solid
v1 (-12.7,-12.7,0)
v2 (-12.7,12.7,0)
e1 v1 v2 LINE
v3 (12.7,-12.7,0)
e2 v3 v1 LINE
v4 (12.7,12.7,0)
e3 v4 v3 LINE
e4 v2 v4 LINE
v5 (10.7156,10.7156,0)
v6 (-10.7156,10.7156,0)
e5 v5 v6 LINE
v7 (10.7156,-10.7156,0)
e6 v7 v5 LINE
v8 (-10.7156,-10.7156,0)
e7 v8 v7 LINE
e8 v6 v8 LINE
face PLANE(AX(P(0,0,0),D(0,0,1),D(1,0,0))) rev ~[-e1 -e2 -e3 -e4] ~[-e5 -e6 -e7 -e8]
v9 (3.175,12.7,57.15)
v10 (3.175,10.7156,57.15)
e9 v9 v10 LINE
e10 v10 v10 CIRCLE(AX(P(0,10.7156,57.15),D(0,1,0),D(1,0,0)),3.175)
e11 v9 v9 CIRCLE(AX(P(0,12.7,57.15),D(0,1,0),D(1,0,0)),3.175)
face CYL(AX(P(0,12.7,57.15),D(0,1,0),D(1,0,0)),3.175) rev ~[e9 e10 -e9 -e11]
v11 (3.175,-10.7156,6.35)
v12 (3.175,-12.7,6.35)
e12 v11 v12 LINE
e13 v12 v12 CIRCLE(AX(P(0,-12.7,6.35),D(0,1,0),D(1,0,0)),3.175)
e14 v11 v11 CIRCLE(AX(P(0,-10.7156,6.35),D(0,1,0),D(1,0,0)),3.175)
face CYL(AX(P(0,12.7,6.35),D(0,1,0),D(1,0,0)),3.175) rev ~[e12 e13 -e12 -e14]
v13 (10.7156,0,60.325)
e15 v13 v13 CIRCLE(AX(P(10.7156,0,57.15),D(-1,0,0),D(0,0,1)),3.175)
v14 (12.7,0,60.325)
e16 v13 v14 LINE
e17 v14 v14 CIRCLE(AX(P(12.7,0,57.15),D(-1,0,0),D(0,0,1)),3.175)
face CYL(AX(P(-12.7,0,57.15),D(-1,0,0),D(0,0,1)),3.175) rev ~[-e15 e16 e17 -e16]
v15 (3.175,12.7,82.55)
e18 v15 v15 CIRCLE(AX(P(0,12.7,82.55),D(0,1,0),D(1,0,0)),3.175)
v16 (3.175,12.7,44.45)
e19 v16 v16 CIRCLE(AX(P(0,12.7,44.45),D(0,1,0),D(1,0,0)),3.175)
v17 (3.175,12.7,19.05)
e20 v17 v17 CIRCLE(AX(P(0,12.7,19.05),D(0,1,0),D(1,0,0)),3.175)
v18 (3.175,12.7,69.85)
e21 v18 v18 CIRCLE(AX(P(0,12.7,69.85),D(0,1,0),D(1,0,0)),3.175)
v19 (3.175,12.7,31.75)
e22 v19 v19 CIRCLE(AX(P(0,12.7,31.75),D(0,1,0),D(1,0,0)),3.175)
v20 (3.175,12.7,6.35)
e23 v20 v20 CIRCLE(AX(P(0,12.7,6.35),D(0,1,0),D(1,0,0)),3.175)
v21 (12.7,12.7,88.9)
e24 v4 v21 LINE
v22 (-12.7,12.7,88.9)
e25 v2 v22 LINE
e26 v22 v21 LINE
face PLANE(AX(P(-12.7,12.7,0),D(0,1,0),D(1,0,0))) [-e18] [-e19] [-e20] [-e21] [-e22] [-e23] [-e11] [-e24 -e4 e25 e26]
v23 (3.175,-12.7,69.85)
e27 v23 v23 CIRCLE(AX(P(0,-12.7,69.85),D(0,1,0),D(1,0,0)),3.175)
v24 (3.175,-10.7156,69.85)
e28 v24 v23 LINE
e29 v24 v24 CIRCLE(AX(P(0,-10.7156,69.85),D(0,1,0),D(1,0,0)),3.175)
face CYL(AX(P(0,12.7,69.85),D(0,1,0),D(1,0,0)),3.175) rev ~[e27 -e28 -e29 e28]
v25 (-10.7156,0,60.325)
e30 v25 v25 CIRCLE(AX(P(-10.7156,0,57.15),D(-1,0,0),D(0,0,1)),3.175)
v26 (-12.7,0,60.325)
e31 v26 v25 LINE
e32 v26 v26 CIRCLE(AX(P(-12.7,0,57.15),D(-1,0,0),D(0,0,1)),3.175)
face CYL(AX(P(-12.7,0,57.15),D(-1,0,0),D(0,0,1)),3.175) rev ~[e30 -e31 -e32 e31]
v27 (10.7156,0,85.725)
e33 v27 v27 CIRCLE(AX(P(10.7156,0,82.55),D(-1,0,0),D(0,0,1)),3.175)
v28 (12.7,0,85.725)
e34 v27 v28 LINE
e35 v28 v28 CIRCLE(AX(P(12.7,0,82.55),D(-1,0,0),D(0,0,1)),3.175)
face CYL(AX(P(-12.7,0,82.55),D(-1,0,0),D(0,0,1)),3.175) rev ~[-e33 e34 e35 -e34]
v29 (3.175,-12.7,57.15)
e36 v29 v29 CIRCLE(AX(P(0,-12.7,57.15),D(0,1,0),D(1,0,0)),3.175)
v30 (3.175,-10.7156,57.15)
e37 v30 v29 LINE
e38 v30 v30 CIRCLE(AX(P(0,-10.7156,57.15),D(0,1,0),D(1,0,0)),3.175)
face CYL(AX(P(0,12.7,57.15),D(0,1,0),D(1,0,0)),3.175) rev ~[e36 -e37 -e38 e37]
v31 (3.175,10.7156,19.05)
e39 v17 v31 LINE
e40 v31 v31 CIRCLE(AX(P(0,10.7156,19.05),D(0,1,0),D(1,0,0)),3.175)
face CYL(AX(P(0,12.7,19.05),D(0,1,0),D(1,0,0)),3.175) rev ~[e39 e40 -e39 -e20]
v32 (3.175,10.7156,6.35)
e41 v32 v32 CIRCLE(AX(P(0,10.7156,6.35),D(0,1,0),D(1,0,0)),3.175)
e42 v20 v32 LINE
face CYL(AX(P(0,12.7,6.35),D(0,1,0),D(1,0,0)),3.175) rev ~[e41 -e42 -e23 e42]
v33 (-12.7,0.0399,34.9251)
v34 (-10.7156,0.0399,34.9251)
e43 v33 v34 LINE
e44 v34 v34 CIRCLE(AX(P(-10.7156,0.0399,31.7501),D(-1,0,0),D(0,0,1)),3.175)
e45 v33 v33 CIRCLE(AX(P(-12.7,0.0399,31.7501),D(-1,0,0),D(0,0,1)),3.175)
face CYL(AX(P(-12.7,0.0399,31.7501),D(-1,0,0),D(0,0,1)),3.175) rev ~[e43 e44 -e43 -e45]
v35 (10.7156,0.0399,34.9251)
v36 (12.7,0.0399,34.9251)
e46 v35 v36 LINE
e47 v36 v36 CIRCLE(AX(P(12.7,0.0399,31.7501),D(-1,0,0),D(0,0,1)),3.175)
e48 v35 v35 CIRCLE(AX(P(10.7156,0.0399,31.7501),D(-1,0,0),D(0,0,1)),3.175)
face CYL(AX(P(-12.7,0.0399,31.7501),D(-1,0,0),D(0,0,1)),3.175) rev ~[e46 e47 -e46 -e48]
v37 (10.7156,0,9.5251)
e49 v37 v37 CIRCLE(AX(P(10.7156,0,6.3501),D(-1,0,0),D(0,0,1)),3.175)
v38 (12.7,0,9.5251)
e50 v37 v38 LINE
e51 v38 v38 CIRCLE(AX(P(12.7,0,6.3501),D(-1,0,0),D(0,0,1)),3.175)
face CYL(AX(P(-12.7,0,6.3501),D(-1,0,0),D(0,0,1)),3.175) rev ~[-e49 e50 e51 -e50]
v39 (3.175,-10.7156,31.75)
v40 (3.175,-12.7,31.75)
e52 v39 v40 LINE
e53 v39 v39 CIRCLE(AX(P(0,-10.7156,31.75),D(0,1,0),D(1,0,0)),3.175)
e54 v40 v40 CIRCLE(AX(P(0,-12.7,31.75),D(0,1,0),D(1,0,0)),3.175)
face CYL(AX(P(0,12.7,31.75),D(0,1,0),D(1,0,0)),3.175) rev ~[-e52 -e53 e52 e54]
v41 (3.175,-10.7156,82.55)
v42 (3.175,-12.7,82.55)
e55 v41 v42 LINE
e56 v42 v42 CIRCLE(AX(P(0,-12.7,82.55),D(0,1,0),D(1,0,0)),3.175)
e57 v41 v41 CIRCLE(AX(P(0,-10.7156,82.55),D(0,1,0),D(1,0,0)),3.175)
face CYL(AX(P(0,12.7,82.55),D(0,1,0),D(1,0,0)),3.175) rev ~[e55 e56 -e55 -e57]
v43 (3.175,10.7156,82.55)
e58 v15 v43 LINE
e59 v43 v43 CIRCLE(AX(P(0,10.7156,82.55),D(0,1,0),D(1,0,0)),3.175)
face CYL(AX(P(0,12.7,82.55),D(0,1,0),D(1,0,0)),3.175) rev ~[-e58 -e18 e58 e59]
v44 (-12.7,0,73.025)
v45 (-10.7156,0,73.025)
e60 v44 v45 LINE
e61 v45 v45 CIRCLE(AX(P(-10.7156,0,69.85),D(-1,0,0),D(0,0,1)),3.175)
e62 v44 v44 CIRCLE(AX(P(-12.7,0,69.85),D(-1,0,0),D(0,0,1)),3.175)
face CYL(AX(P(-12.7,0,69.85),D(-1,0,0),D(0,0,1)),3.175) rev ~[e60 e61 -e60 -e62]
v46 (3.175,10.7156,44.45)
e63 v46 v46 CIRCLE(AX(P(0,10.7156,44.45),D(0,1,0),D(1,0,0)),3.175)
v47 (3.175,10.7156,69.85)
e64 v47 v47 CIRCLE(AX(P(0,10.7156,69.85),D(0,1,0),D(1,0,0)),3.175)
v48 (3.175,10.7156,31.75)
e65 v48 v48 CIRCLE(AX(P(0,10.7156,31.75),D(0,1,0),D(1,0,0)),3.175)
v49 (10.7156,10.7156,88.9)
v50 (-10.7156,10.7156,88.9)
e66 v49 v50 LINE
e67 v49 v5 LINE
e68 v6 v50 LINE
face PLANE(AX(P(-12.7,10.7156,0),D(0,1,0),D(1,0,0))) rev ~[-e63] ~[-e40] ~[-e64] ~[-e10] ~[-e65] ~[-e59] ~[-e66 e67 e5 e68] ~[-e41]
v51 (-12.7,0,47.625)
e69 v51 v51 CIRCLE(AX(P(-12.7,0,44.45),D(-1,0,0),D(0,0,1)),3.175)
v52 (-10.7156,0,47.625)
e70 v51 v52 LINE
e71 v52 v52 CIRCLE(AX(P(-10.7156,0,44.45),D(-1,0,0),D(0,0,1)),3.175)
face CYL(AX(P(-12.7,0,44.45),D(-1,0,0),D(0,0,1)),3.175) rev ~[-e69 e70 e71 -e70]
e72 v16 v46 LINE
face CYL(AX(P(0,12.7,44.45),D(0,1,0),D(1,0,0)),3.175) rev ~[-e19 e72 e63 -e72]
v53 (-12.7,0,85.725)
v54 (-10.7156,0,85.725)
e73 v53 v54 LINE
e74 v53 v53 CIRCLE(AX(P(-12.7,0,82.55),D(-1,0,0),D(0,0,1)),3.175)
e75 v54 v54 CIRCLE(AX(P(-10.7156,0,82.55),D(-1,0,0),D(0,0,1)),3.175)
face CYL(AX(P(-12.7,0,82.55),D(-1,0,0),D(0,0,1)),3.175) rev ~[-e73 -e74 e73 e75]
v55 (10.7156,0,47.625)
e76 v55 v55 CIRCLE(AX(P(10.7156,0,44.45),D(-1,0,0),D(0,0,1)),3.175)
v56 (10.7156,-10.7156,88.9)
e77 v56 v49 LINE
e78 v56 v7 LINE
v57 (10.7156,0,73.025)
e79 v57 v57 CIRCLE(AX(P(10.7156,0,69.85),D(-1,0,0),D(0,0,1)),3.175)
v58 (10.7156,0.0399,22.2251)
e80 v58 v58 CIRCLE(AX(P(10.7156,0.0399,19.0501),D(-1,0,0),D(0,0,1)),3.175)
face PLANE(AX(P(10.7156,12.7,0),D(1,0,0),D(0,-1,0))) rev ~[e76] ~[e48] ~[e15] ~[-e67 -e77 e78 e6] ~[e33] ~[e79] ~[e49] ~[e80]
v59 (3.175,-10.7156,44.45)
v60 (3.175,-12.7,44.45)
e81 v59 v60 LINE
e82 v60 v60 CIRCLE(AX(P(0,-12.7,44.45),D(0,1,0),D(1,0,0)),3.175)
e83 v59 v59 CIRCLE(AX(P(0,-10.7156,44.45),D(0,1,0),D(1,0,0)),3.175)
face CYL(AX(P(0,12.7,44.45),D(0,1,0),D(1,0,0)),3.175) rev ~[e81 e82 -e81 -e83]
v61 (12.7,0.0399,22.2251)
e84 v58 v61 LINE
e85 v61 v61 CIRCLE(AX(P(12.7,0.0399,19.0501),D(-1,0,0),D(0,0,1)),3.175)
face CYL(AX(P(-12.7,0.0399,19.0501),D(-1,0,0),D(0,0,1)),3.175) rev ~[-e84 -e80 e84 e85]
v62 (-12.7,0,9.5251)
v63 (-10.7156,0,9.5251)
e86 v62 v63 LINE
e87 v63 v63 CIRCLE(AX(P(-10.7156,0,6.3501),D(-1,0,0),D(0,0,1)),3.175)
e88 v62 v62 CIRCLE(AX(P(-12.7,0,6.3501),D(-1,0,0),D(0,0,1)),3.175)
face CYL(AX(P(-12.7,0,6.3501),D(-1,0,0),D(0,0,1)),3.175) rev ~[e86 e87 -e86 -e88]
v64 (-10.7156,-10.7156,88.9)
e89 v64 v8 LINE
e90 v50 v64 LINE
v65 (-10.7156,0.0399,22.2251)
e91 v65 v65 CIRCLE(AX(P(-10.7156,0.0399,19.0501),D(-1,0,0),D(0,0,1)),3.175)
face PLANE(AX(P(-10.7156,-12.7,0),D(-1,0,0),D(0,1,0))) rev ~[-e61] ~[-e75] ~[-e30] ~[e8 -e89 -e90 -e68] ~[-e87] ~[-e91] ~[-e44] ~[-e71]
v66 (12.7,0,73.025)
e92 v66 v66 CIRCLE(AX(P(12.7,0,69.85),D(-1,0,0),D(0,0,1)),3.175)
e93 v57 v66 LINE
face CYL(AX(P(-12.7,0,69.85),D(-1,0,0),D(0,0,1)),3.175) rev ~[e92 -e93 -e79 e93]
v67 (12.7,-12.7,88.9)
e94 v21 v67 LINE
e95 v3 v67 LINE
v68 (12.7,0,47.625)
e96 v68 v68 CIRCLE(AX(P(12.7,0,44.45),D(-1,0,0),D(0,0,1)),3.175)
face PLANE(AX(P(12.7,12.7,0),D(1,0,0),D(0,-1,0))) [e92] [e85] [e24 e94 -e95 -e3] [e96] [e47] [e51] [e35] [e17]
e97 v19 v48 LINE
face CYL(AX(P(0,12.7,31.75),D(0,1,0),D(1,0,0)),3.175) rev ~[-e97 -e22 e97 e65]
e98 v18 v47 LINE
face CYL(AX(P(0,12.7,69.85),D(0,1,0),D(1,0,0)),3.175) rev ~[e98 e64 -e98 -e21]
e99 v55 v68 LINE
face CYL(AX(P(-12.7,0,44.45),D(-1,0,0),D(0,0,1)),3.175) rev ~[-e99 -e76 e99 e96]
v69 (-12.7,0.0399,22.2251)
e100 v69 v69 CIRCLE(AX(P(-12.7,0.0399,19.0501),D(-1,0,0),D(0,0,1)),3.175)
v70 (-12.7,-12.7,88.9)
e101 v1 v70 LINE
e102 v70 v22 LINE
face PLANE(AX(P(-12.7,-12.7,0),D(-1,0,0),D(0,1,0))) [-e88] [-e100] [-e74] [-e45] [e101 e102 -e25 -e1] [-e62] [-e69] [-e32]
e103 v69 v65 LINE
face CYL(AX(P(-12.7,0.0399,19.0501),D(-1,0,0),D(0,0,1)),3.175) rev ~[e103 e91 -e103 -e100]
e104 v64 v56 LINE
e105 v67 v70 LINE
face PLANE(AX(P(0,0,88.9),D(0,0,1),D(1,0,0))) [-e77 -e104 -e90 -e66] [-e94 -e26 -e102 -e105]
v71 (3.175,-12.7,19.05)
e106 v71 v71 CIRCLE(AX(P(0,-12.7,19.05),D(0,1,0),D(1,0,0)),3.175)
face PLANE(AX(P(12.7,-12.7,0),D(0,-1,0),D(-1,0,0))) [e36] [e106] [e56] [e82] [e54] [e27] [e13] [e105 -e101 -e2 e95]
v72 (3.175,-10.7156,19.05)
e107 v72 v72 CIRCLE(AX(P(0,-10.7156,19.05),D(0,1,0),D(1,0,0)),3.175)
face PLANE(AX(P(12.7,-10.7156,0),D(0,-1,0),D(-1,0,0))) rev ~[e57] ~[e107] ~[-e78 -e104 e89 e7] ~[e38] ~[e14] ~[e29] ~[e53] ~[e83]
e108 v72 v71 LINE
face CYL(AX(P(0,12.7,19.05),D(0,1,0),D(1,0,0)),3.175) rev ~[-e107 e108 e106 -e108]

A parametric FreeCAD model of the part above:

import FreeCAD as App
import Part
import Sketcher
from FreeCAD import Vector
Q = App.Units.Quantity


def faces_at(feature, points):
    """Names of the faces that lie closest to the given points."""
    faces = feature.Shape.Faces
    near = lambda p: min(range(len(faces)), key=lambda i: faces[i].distToShape(Part.Vertex(*p))[0])
    return sorted({f"Face{near(p) + 1}" for p in points})

doc = App.newDocument("Part")
body = doc.addObject("PartDesign::Body", "Body")

# Sketch on XY plane
sketch1 = body.newObject("Sketcher::SketchObject", "Sketch")
sketch1.AttachmentSupport = (doc.getObject("XY_Plane"), [""])
sketch1.MapMode = "FlatFace"
sketch1.addGeometry([
    Part.LineSegment(Vector(13, 13, 0), Vector(-13, 13, 0)),
    Part.LineSegment(Vector(-13, 13, 0), Vector(-13, -13, 0)),
    Part.LineSegment(Vector(-13, -13, 0), Vector(13, -13, 0)),
    Part.LineSegment(Vector(13, -13, 0), Vector(13, 13, 0)),
], False)
sketch1.addConstraint([
    Sketcher.Constraint("Coincident", 0, 2, 1, 1),
    Sketcher.Constraint("Coincident", 1, 2, 2, 1),
    Sketcher.Constraint("Coincident", 2, 2, 3, 1),
    Sketcher.Constraint("Coincident", 3, 2, 0, 1),
    Sketcher.Constraint("Horizontal", 0),
    Sketcher.Constraint("Vertical", 1),
    Sketcher.Constraint("Horizontal", 2),
    Sketcher.Constraint("Vertical", 3),
    Sketcher.Constraint("Symmetric", 0, 2, 2, 2, -1, 1),
    Sketcher.Constraint("Equal", 2, 1),
    Sketcher.Constraint("DistanceX", 0, 2, 0, 1, Q("1 in")),
])
pad1 = body.newObject("PartDesign::Pad", "Pad")
pad1.Profile = sketch1
pad1.Length = Q("3.5 in")
doc.recompute()

thickness = body.newObject("PartDesign::Thickness", "Thickness")
thickness.Base = (pad1, faces_at(pad1, [(4.233, -4.233, 0), (4.233, -4.233, 88.9)]))
thickness.Value = Q("0.078126 in")
thickness.Reversed = True
thickness.Join = "Intersection"

# Sketch on YZ plane
sketch2 = body.newObject("Sketcher::SketchObject", "Sketch001")
sketch2.AttachmentSupport = (doc.getObject("YZ_Plane"), [""])
sketch2.MapMode = "FlatFace"
sketch2.AttachmentOffset = App.Placement(Vector(0, 0, -0.5 * 25.4), App.Rotation())
sketch2.addGeometry([
    Part.Circle(Vector(0, 19.1, 0), Vector(0, 0, 1), 3.2),  # 0
    Part.Circle(Vector(0, 31.8, 0), Vector(0, 0, 1), 3.2),  # 1
    Part.Circle(Vector(0, 44.5, 0), Vector(0, 0, 1), 3.2),  # 2
    Part.Circle(Vector(0, 57.1, 0), Vector(0, 0, 1), 3.2),  # 3
    Part.Circle(Vector(0, 69.8, 0), Vector(0, 0, 1), 3.2),  # 4
    Part.Circle(Vector(0, 82.5, 0), Vector(0, 0, 1), 3.2),  # 5
    Part.Circle(Vector(0, 6.4, 0), Vector(0, 0, 1), 3.2),  # 6
], False)
sketch2.addConstraint([
    Sketcher.Constraint("Equal", 0, 1),
    Sketcher.Constraint("Equal", 1, 2),
    Sketcher.Constraint("Equal", 2, 3),
    Sketcher.Constraint("Equal", 3, 4),
    Sketcher.Constraint("Equal", 4, 5),
    Sketcher.Constraint("Equal", 5, 6),
    Sketcher.Constraint("PointOnObject", 2, 3, -2),
    Sketcher.Constraint("PointOnObject", 3, 3, -2),
    Sketcher.Constraint("PointOnObject", 4, 3, -2),
    Sketcher.Constraint("PointOnObject", 5, 3, -2),
    Sketcher.Constraint("PointOnObject", 6, 3, -2),
    Sketcher.Constraint("Vertical", 0, 3, 1, 3),
    Sketcher.Constraint("Diameter", 0, Q("0.25 in")),
    Sketcher.Constraint("DistanceY", 0, 3, 1, 3, Q("0.5 in")),
    Sketcher.Constraint("DistanceY", 1, 3, 2, 3, Q("0.5 in")),
    Sketcher.Constraint("DistanceY", 2, 3, 3, 3, Q("0.5 in")),
    Sketcher.Constraint("DistanceY", 3, 3, 4, 3, Q("0.5 in")),
    Sketcher.Constraint("DistanceY", 4, 3, 5, 3, Q("0.5 in")),
    Sketcher.Constraint("DistanceY", 6, 3, 0, 3, Q("0.5 in")),
    Sketcher.Constraint("DistanceY", -1, 1, 6, 3, Q("0.25 in")),
    Sketcher.Constraint("DistanceX", -1, 1, 0, 3, Q("0.04 mm")),
])
pocket1 = body.newObject("PartDesign::Pocket", "Pocket")
pocket1.Profile = sketch2
pocket1.Length = Q("3.5 in")
pocket1.Reversed = True

# Sketch on XZ plane
sketch3 = body.newObject("Sketcher::SketchObject", "Sketch002")
sketch3.AttachmentSupport = (doc.getObject("XZ_Plane"), [""])
sketch3.MapMode = "FlatFace"
sketch3.AttachmentOffset = App.Placement(Vector(0, 0, -0.5 * 25.4), App.Rotation())
sketch3.addGeometry([
    Part.Circle(Vector(0, 44.5, 0), Vector(0, 0, 1), 3.2),  # 0
    Part.Circle(Vector(0, 31.8, 0), Vector(0, 0, 1), 3.2),  # 1
    Part.Circle(Vector(0, 19.1, 0), Vector(0, 0, 1), 3.2),  # 2
    Part.Circle(Vector(0, 6.3, 0), Vector(0, 0, 1), 3.2),  # 3
    Part.Circle(Vector(0, 57.1, 0), Vector(0, 0, 1), 3.2),  # 4
    Part.Circle(Vector(0, 69.8, 0), Vector(0, 0, 1), 3.2),  # 5
    Part.Circle(Vector(0, 82.5, 0), Vector(0, 0, 1), 3.2),  # 6
], False)
sketch3.addConstraint([
    Sketcher.Constraint("Equal", 0, 1),
    Sketcher.Constraint("Equal", 1, 2),
    Sketcher.Constraint("Equal", 2, 3),
    Sketcher.Constraint("Equal", 3, 4),
    Sketcher.Constraint("Equal", 4, 5),
    Sketcher.Constraint("Equal", 5, 6),
    Sketcher.Constraint("PointOnObject", 0, 3, -2),
    Sketcher.Constraint("PointOnObject", 1, 3, -2),
    Sketcher.Constraint("PointOnObject", 2, 3, -2),
    Sketcher.Constraint("PointOnObject", 3, 3, -2),
    Sketcher.Constraint("PointOnObject", 4, 3, -2),
    Sketcher.Constraint("PointOnObject", 5, 3, -2),
    Sketcher.Constraint("PointOnObject", 6, 3, -2),
    Sketcher.Constraint("Diameter", 0, Q("0.25 in")),
    Sketcher.Constraint("DistanceY", 1, 3, 0, 3, Q("0.5 in")),
    Sketcher.Constraint("DistanceY", 2, 3, 1, 3, Q("0.5 in")),
    Sketcher.Constraint("DistanceY", 3, 3, 2, 3, Q("0.5 in")),
    Sketcher.Constraint("DistanceY", 0, 3, 4, 3, Q("0.5 in")),
    Sketcher.Constraint("DistanceY", 4, 3, 5, 3, Q("0.5 in")),
    Sketcher.Constraint("DistanceY", 5, 3, 6, 3, Q("0.5 in")),
    Sketcher.Constraint("DistanceY", -1, 1, 3, 3, Q("0.25 in")),
])
pocket2 = body.newObject("PartDesign::Pocket", "Pocket001")
pocket2.Profile = sketch3
pocket2.Length = Q("3.5 in")
pocket2.Reversed = True

doc.recompute()
